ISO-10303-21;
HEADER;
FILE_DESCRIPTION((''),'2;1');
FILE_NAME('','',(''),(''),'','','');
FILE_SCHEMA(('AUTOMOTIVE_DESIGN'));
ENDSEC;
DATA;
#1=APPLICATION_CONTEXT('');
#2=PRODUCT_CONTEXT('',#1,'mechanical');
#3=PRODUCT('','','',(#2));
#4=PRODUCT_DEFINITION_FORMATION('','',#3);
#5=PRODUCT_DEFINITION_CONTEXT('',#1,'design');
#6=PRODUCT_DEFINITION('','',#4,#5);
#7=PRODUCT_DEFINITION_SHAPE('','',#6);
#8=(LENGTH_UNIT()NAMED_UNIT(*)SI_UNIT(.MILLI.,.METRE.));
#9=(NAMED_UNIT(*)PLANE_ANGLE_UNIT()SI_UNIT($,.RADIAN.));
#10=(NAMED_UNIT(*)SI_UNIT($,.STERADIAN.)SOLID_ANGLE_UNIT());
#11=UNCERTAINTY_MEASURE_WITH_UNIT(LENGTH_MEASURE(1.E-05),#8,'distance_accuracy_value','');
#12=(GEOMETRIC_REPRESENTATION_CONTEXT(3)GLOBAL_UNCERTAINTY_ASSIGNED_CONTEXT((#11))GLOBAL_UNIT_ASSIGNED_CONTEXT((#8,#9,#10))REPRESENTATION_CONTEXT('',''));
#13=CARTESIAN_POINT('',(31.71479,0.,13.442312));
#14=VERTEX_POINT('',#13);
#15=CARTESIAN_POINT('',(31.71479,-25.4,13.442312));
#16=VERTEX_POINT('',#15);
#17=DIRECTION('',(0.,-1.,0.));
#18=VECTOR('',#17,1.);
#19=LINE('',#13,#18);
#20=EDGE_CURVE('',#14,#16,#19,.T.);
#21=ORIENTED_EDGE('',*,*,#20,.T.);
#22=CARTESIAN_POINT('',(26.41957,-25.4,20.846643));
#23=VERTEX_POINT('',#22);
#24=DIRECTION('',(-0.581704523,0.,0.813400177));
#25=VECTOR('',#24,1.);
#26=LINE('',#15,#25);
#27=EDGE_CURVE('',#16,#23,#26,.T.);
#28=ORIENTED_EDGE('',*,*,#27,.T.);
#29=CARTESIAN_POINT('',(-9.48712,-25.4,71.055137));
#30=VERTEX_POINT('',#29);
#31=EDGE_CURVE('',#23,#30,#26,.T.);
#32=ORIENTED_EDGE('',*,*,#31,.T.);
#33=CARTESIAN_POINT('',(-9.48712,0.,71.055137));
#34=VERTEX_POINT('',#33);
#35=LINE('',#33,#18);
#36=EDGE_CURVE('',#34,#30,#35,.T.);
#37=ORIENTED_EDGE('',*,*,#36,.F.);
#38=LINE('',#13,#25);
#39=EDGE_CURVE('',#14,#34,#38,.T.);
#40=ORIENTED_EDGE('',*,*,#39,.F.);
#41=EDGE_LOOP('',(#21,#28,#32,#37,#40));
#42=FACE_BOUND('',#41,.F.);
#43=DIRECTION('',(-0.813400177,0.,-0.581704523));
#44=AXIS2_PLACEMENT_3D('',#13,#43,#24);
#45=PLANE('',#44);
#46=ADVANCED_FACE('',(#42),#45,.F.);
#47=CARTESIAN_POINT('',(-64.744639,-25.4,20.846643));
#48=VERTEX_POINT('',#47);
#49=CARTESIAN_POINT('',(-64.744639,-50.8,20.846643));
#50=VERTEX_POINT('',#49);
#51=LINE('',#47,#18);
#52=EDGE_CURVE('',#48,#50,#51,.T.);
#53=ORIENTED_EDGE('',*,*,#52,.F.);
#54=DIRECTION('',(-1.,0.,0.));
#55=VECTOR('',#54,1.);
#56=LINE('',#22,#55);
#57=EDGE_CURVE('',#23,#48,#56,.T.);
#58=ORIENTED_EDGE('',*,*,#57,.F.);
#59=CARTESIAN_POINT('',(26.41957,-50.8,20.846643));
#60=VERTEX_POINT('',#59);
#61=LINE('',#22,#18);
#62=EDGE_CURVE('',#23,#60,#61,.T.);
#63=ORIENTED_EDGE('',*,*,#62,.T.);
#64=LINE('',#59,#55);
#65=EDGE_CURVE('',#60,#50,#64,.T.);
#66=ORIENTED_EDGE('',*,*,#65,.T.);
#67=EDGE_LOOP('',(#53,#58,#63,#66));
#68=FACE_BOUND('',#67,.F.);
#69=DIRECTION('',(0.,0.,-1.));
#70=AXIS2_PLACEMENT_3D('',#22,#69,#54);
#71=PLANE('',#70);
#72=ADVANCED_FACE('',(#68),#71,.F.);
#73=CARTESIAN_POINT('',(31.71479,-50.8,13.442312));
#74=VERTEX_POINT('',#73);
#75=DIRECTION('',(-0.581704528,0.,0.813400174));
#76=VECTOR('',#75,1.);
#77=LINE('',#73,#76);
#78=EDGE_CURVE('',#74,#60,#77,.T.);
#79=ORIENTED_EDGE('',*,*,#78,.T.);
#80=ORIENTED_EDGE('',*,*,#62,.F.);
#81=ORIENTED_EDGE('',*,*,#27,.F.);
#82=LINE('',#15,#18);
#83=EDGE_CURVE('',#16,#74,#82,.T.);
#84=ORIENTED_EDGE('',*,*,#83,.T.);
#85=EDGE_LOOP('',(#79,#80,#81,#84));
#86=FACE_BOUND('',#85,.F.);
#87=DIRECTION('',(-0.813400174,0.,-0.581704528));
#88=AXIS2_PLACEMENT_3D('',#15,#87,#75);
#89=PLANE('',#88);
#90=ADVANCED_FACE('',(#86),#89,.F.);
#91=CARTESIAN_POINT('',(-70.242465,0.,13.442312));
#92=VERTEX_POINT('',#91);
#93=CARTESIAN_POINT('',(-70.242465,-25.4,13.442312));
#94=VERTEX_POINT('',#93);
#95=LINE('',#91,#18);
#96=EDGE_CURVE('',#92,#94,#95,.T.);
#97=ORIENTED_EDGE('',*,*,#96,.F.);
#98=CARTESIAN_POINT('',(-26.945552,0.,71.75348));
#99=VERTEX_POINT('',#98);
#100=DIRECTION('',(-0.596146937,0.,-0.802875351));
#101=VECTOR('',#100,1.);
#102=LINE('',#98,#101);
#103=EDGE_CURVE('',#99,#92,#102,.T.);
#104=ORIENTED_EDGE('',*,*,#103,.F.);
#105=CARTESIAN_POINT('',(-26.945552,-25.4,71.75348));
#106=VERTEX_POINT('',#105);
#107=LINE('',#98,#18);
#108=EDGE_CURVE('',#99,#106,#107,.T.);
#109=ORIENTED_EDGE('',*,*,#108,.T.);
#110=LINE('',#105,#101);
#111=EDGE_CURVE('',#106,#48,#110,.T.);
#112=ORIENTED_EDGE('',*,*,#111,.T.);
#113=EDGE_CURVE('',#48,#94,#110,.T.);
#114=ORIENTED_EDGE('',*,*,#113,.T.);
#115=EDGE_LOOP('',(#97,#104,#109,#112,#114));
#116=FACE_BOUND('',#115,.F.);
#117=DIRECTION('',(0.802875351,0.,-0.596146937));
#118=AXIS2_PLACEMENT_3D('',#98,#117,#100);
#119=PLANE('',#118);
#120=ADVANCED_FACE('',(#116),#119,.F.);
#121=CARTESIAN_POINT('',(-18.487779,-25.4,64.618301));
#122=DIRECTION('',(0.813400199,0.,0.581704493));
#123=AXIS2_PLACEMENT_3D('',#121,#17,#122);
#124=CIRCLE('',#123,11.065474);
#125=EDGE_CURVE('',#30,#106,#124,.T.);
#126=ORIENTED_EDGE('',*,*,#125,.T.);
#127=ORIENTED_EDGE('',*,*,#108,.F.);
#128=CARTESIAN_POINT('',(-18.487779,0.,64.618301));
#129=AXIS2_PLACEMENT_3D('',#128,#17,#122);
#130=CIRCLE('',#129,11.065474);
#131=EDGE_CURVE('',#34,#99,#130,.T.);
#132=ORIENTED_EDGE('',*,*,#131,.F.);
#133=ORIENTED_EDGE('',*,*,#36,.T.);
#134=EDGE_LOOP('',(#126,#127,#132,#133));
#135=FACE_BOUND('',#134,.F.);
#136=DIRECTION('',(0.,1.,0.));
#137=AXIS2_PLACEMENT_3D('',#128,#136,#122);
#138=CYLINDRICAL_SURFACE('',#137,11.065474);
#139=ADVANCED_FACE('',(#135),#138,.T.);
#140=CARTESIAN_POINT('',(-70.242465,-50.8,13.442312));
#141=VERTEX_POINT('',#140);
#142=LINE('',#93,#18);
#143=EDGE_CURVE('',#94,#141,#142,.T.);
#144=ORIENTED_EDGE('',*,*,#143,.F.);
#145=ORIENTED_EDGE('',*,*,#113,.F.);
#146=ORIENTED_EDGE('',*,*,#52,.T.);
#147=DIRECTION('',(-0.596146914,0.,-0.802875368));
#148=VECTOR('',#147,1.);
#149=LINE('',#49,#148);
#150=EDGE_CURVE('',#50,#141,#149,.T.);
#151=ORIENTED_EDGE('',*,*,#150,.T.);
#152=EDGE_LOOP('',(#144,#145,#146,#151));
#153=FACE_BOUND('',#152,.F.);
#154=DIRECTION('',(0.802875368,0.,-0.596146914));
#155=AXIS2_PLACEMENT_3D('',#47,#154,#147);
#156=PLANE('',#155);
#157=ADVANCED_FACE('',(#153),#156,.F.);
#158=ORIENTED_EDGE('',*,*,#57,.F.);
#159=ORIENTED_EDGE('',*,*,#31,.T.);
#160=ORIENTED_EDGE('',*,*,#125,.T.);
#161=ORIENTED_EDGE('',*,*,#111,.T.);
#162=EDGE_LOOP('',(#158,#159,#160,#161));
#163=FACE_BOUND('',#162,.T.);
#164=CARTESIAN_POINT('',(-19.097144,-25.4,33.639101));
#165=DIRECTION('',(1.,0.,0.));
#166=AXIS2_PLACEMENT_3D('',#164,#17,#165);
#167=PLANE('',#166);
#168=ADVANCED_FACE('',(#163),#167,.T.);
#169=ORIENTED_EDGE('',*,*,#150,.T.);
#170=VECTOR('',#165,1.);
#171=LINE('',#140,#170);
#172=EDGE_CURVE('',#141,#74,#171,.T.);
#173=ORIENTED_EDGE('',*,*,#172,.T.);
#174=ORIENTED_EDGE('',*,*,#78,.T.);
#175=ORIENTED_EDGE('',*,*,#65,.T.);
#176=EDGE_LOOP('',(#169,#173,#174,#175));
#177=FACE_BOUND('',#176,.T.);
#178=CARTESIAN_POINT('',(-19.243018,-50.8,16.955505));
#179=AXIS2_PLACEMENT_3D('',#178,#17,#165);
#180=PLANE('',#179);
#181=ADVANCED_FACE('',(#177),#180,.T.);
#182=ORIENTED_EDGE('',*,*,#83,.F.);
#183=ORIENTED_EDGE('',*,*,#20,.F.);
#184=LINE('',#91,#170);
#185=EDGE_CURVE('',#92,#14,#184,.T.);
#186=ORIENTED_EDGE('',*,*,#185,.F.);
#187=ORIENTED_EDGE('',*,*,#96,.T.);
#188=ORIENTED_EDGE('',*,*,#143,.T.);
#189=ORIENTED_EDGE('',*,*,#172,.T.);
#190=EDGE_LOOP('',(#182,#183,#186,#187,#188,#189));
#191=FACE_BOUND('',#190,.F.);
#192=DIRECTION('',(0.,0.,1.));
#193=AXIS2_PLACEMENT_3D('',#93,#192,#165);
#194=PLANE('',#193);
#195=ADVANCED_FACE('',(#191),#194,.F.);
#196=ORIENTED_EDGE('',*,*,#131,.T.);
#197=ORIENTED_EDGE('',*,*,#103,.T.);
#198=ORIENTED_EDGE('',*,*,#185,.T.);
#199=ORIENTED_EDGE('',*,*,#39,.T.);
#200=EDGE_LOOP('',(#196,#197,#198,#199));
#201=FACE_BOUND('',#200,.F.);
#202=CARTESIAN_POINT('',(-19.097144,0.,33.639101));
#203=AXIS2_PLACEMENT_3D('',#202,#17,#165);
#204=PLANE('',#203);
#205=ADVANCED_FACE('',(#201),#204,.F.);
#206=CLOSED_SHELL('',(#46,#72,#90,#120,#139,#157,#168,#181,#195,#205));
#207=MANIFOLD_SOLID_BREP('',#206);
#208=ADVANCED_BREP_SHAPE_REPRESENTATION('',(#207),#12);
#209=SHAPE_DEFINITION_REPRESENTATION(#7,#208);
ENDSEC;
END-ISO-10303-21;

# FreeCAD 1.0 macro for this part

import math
import FreeCAD as App
import Part
import Sketcher

V = App.Vector
Q = App.Units.Quantity

doc = App.newDocument("Part")
params = doc.addObject("Spreadsheet::Sheet", "Params")
for row, (alias, value) in enumerate([
    ("pad1_length", "1 in"),
    ("pad2_length", "1 in"),
], start=1):
    params.set(f"A{row}", alias)
    params.set(f"B{row}", "=" + value)
    params.setAlias(f"B{row}", alias)

body = doc.addObject("PartDesign::Body", "Body")

# Sketch on XZ plane
sketch1 = body.newObject("Sketcher::SketchObject", "Sketch")
sketch1.AttachmentSupport = (doc.getObject("XZ_Plane"), [""])
sketch1.MapMode = "FlatFace"
sketch1.addGeometry(Part.LineSegment(V(-26.945552, 71.75348, 0), V(-70.242465, 13.442312, 0)), False)
sketch1.addGeometry(Part.LineSegment(V(-70.242465, 13.442312, 0), V(31.71479, 13.442312, 0)), False)
sketch1.addGeometry(Part.LineSegment(V(31.71479, 13.442312, 0), V(-9.48712, 71.055137, 0)), False)
sketch1.addGeometry(Part.ArcOfCircle(Part.Circle(V(-18.487779, 64.618301, 0), V(0, 0, 1), 11.065474), math.radians(35.570517), math.radians(139.848225)), False)
sketch1.addConstraint(Sketcher.Constraint("Coincident", 0, 2, 1, 1))
sketch1.addConstraint(Sketcher.Constraint("Coincident", 1, 2, 2, 1))
sketch1.addConstraint(Sketcher.Constraint("Tangent", 2, 2, 3, 1))
sketch1.addConstraint(Sketcher.Constraint("Coincident", 3, 2, 0, 1))
sketch1.addConstraint(Sketcher.Constraint("Horizontal", 1))
sketch1.addConstraint(Sketcher.Constraint("Radius", 3, Q("11.065474 mm")))
sketch1.addConstraint(Sketcher.Constraint("DistanceY", -1, 1, 3, 3, Q("64.618301 mm")))
sketch1.addConstraint(Sketcher.Constraint("Distance", 0, Q("72.627922 mm")))
sketch1.addConstraint(Sketcher.Constraint("Distance", 2, Q("70.829619 mm")))
sketch1.addConstraint(Sketcher.Constraint("DistanceX", 1, 1, 1, 2, Q("101.957255 mm")))
sketch1.addConstraint(Sketcher.Constraint("DistanceX", 3, 3, -1, 1, Q("18.487779 mm")))
sketch1.addConstraint(Sketcher.Constraint("DistanceY", -1, 1, 0, 2, Q("13.442312 mm")))
pad1 = body.newObject("PartDesign::Pad", "Pad")
pad1.Profile = sketch1
pad1.setExpression("Length", "Params.pad1_length")

# Sketch on XZ plane
sketch2 = body.newObject("Sketcher::SketchObject", "Sketch001")
sketch2.AttachmentSupport = (doc.getObject("XZ_Plane"), [""])
sketch2.MapMode = "FlatFace"
sketch2.AttachmentOffset = App.Placement(V(0, 0, 1 * 25.4), App.Rotation())
sketch2.addGeometry(Part.LineSegment(V(-64.744639, 20.846643, 0), V(-70.242465, 13.442312, 0)), False)
sketch2.addGeometry(Part.LineSegment(V(-70.242465, 13.442312, 0), V(31.71479, 13.442312, 0)), False)
sketch2.addGeometry(Part.LineSegment(V(31.71479, 13.442312, 0), V(26.41957, 20.846643, 0)), False)
sketch2.addGeometry(Part.LineSegment(V(26.41957, 20.846643, 0), V(-64.744639, 20.846643, 0)), False)
sketch2.addConstraint(Sketcher.Constraint("Coincident", 0, 2, 1, 1))
sketch2.addConstraint(Sketcher.Constraint("Coincident", 1, 2, 2, 1))
sketch2.addConstraint(Sketcher.Constraint("Coincident", 2, 2, 3, 1))
sketch2.addConstraint(Sketcher.Constraint("Coincident", 3, 2, 0, 1))
sketch2.addConstraint(Sketcher.Constraint("Horizontal", 1))
sketch2.addConstraint(Sketcher.Constraint("Horizontal", 3))
sketch2.addConstraint(Sketcher.Constraint("DistanceX", 3, 2, 3, 1, Q("91.164209 mm")))
sketch2.addConstraint(Sketcher.Constraint("DistanceX", 1, 1, 1, 2, Q("101.957255 mm")))
sketch2.addConstraint(Sketcher.Constraint("DistanceY", -1, 1, 0, 2, Q("13.442312 mm")))
sketch2.addConstraint(Sketcher.Constraint("DistanceX", -1, 1, 1, 2, Q("31.71479 mm")))
sketch2.addConstraint(Sketcher.Constraint("DistanceX", -1, 1, 2, 2, Q("26.41957 mm")))
sketch2.addConstraint(Sketcher.Constraint("DistanceY", 1, 2, 2, 2, Q("7.404331 mm")))
pad2 = body.newObject("PartDesign::Pad", "Pad001")
pad2.Profile = sketch2
pad2.setExpression("Length", "Params.pad2_length")

doc.recompute()
